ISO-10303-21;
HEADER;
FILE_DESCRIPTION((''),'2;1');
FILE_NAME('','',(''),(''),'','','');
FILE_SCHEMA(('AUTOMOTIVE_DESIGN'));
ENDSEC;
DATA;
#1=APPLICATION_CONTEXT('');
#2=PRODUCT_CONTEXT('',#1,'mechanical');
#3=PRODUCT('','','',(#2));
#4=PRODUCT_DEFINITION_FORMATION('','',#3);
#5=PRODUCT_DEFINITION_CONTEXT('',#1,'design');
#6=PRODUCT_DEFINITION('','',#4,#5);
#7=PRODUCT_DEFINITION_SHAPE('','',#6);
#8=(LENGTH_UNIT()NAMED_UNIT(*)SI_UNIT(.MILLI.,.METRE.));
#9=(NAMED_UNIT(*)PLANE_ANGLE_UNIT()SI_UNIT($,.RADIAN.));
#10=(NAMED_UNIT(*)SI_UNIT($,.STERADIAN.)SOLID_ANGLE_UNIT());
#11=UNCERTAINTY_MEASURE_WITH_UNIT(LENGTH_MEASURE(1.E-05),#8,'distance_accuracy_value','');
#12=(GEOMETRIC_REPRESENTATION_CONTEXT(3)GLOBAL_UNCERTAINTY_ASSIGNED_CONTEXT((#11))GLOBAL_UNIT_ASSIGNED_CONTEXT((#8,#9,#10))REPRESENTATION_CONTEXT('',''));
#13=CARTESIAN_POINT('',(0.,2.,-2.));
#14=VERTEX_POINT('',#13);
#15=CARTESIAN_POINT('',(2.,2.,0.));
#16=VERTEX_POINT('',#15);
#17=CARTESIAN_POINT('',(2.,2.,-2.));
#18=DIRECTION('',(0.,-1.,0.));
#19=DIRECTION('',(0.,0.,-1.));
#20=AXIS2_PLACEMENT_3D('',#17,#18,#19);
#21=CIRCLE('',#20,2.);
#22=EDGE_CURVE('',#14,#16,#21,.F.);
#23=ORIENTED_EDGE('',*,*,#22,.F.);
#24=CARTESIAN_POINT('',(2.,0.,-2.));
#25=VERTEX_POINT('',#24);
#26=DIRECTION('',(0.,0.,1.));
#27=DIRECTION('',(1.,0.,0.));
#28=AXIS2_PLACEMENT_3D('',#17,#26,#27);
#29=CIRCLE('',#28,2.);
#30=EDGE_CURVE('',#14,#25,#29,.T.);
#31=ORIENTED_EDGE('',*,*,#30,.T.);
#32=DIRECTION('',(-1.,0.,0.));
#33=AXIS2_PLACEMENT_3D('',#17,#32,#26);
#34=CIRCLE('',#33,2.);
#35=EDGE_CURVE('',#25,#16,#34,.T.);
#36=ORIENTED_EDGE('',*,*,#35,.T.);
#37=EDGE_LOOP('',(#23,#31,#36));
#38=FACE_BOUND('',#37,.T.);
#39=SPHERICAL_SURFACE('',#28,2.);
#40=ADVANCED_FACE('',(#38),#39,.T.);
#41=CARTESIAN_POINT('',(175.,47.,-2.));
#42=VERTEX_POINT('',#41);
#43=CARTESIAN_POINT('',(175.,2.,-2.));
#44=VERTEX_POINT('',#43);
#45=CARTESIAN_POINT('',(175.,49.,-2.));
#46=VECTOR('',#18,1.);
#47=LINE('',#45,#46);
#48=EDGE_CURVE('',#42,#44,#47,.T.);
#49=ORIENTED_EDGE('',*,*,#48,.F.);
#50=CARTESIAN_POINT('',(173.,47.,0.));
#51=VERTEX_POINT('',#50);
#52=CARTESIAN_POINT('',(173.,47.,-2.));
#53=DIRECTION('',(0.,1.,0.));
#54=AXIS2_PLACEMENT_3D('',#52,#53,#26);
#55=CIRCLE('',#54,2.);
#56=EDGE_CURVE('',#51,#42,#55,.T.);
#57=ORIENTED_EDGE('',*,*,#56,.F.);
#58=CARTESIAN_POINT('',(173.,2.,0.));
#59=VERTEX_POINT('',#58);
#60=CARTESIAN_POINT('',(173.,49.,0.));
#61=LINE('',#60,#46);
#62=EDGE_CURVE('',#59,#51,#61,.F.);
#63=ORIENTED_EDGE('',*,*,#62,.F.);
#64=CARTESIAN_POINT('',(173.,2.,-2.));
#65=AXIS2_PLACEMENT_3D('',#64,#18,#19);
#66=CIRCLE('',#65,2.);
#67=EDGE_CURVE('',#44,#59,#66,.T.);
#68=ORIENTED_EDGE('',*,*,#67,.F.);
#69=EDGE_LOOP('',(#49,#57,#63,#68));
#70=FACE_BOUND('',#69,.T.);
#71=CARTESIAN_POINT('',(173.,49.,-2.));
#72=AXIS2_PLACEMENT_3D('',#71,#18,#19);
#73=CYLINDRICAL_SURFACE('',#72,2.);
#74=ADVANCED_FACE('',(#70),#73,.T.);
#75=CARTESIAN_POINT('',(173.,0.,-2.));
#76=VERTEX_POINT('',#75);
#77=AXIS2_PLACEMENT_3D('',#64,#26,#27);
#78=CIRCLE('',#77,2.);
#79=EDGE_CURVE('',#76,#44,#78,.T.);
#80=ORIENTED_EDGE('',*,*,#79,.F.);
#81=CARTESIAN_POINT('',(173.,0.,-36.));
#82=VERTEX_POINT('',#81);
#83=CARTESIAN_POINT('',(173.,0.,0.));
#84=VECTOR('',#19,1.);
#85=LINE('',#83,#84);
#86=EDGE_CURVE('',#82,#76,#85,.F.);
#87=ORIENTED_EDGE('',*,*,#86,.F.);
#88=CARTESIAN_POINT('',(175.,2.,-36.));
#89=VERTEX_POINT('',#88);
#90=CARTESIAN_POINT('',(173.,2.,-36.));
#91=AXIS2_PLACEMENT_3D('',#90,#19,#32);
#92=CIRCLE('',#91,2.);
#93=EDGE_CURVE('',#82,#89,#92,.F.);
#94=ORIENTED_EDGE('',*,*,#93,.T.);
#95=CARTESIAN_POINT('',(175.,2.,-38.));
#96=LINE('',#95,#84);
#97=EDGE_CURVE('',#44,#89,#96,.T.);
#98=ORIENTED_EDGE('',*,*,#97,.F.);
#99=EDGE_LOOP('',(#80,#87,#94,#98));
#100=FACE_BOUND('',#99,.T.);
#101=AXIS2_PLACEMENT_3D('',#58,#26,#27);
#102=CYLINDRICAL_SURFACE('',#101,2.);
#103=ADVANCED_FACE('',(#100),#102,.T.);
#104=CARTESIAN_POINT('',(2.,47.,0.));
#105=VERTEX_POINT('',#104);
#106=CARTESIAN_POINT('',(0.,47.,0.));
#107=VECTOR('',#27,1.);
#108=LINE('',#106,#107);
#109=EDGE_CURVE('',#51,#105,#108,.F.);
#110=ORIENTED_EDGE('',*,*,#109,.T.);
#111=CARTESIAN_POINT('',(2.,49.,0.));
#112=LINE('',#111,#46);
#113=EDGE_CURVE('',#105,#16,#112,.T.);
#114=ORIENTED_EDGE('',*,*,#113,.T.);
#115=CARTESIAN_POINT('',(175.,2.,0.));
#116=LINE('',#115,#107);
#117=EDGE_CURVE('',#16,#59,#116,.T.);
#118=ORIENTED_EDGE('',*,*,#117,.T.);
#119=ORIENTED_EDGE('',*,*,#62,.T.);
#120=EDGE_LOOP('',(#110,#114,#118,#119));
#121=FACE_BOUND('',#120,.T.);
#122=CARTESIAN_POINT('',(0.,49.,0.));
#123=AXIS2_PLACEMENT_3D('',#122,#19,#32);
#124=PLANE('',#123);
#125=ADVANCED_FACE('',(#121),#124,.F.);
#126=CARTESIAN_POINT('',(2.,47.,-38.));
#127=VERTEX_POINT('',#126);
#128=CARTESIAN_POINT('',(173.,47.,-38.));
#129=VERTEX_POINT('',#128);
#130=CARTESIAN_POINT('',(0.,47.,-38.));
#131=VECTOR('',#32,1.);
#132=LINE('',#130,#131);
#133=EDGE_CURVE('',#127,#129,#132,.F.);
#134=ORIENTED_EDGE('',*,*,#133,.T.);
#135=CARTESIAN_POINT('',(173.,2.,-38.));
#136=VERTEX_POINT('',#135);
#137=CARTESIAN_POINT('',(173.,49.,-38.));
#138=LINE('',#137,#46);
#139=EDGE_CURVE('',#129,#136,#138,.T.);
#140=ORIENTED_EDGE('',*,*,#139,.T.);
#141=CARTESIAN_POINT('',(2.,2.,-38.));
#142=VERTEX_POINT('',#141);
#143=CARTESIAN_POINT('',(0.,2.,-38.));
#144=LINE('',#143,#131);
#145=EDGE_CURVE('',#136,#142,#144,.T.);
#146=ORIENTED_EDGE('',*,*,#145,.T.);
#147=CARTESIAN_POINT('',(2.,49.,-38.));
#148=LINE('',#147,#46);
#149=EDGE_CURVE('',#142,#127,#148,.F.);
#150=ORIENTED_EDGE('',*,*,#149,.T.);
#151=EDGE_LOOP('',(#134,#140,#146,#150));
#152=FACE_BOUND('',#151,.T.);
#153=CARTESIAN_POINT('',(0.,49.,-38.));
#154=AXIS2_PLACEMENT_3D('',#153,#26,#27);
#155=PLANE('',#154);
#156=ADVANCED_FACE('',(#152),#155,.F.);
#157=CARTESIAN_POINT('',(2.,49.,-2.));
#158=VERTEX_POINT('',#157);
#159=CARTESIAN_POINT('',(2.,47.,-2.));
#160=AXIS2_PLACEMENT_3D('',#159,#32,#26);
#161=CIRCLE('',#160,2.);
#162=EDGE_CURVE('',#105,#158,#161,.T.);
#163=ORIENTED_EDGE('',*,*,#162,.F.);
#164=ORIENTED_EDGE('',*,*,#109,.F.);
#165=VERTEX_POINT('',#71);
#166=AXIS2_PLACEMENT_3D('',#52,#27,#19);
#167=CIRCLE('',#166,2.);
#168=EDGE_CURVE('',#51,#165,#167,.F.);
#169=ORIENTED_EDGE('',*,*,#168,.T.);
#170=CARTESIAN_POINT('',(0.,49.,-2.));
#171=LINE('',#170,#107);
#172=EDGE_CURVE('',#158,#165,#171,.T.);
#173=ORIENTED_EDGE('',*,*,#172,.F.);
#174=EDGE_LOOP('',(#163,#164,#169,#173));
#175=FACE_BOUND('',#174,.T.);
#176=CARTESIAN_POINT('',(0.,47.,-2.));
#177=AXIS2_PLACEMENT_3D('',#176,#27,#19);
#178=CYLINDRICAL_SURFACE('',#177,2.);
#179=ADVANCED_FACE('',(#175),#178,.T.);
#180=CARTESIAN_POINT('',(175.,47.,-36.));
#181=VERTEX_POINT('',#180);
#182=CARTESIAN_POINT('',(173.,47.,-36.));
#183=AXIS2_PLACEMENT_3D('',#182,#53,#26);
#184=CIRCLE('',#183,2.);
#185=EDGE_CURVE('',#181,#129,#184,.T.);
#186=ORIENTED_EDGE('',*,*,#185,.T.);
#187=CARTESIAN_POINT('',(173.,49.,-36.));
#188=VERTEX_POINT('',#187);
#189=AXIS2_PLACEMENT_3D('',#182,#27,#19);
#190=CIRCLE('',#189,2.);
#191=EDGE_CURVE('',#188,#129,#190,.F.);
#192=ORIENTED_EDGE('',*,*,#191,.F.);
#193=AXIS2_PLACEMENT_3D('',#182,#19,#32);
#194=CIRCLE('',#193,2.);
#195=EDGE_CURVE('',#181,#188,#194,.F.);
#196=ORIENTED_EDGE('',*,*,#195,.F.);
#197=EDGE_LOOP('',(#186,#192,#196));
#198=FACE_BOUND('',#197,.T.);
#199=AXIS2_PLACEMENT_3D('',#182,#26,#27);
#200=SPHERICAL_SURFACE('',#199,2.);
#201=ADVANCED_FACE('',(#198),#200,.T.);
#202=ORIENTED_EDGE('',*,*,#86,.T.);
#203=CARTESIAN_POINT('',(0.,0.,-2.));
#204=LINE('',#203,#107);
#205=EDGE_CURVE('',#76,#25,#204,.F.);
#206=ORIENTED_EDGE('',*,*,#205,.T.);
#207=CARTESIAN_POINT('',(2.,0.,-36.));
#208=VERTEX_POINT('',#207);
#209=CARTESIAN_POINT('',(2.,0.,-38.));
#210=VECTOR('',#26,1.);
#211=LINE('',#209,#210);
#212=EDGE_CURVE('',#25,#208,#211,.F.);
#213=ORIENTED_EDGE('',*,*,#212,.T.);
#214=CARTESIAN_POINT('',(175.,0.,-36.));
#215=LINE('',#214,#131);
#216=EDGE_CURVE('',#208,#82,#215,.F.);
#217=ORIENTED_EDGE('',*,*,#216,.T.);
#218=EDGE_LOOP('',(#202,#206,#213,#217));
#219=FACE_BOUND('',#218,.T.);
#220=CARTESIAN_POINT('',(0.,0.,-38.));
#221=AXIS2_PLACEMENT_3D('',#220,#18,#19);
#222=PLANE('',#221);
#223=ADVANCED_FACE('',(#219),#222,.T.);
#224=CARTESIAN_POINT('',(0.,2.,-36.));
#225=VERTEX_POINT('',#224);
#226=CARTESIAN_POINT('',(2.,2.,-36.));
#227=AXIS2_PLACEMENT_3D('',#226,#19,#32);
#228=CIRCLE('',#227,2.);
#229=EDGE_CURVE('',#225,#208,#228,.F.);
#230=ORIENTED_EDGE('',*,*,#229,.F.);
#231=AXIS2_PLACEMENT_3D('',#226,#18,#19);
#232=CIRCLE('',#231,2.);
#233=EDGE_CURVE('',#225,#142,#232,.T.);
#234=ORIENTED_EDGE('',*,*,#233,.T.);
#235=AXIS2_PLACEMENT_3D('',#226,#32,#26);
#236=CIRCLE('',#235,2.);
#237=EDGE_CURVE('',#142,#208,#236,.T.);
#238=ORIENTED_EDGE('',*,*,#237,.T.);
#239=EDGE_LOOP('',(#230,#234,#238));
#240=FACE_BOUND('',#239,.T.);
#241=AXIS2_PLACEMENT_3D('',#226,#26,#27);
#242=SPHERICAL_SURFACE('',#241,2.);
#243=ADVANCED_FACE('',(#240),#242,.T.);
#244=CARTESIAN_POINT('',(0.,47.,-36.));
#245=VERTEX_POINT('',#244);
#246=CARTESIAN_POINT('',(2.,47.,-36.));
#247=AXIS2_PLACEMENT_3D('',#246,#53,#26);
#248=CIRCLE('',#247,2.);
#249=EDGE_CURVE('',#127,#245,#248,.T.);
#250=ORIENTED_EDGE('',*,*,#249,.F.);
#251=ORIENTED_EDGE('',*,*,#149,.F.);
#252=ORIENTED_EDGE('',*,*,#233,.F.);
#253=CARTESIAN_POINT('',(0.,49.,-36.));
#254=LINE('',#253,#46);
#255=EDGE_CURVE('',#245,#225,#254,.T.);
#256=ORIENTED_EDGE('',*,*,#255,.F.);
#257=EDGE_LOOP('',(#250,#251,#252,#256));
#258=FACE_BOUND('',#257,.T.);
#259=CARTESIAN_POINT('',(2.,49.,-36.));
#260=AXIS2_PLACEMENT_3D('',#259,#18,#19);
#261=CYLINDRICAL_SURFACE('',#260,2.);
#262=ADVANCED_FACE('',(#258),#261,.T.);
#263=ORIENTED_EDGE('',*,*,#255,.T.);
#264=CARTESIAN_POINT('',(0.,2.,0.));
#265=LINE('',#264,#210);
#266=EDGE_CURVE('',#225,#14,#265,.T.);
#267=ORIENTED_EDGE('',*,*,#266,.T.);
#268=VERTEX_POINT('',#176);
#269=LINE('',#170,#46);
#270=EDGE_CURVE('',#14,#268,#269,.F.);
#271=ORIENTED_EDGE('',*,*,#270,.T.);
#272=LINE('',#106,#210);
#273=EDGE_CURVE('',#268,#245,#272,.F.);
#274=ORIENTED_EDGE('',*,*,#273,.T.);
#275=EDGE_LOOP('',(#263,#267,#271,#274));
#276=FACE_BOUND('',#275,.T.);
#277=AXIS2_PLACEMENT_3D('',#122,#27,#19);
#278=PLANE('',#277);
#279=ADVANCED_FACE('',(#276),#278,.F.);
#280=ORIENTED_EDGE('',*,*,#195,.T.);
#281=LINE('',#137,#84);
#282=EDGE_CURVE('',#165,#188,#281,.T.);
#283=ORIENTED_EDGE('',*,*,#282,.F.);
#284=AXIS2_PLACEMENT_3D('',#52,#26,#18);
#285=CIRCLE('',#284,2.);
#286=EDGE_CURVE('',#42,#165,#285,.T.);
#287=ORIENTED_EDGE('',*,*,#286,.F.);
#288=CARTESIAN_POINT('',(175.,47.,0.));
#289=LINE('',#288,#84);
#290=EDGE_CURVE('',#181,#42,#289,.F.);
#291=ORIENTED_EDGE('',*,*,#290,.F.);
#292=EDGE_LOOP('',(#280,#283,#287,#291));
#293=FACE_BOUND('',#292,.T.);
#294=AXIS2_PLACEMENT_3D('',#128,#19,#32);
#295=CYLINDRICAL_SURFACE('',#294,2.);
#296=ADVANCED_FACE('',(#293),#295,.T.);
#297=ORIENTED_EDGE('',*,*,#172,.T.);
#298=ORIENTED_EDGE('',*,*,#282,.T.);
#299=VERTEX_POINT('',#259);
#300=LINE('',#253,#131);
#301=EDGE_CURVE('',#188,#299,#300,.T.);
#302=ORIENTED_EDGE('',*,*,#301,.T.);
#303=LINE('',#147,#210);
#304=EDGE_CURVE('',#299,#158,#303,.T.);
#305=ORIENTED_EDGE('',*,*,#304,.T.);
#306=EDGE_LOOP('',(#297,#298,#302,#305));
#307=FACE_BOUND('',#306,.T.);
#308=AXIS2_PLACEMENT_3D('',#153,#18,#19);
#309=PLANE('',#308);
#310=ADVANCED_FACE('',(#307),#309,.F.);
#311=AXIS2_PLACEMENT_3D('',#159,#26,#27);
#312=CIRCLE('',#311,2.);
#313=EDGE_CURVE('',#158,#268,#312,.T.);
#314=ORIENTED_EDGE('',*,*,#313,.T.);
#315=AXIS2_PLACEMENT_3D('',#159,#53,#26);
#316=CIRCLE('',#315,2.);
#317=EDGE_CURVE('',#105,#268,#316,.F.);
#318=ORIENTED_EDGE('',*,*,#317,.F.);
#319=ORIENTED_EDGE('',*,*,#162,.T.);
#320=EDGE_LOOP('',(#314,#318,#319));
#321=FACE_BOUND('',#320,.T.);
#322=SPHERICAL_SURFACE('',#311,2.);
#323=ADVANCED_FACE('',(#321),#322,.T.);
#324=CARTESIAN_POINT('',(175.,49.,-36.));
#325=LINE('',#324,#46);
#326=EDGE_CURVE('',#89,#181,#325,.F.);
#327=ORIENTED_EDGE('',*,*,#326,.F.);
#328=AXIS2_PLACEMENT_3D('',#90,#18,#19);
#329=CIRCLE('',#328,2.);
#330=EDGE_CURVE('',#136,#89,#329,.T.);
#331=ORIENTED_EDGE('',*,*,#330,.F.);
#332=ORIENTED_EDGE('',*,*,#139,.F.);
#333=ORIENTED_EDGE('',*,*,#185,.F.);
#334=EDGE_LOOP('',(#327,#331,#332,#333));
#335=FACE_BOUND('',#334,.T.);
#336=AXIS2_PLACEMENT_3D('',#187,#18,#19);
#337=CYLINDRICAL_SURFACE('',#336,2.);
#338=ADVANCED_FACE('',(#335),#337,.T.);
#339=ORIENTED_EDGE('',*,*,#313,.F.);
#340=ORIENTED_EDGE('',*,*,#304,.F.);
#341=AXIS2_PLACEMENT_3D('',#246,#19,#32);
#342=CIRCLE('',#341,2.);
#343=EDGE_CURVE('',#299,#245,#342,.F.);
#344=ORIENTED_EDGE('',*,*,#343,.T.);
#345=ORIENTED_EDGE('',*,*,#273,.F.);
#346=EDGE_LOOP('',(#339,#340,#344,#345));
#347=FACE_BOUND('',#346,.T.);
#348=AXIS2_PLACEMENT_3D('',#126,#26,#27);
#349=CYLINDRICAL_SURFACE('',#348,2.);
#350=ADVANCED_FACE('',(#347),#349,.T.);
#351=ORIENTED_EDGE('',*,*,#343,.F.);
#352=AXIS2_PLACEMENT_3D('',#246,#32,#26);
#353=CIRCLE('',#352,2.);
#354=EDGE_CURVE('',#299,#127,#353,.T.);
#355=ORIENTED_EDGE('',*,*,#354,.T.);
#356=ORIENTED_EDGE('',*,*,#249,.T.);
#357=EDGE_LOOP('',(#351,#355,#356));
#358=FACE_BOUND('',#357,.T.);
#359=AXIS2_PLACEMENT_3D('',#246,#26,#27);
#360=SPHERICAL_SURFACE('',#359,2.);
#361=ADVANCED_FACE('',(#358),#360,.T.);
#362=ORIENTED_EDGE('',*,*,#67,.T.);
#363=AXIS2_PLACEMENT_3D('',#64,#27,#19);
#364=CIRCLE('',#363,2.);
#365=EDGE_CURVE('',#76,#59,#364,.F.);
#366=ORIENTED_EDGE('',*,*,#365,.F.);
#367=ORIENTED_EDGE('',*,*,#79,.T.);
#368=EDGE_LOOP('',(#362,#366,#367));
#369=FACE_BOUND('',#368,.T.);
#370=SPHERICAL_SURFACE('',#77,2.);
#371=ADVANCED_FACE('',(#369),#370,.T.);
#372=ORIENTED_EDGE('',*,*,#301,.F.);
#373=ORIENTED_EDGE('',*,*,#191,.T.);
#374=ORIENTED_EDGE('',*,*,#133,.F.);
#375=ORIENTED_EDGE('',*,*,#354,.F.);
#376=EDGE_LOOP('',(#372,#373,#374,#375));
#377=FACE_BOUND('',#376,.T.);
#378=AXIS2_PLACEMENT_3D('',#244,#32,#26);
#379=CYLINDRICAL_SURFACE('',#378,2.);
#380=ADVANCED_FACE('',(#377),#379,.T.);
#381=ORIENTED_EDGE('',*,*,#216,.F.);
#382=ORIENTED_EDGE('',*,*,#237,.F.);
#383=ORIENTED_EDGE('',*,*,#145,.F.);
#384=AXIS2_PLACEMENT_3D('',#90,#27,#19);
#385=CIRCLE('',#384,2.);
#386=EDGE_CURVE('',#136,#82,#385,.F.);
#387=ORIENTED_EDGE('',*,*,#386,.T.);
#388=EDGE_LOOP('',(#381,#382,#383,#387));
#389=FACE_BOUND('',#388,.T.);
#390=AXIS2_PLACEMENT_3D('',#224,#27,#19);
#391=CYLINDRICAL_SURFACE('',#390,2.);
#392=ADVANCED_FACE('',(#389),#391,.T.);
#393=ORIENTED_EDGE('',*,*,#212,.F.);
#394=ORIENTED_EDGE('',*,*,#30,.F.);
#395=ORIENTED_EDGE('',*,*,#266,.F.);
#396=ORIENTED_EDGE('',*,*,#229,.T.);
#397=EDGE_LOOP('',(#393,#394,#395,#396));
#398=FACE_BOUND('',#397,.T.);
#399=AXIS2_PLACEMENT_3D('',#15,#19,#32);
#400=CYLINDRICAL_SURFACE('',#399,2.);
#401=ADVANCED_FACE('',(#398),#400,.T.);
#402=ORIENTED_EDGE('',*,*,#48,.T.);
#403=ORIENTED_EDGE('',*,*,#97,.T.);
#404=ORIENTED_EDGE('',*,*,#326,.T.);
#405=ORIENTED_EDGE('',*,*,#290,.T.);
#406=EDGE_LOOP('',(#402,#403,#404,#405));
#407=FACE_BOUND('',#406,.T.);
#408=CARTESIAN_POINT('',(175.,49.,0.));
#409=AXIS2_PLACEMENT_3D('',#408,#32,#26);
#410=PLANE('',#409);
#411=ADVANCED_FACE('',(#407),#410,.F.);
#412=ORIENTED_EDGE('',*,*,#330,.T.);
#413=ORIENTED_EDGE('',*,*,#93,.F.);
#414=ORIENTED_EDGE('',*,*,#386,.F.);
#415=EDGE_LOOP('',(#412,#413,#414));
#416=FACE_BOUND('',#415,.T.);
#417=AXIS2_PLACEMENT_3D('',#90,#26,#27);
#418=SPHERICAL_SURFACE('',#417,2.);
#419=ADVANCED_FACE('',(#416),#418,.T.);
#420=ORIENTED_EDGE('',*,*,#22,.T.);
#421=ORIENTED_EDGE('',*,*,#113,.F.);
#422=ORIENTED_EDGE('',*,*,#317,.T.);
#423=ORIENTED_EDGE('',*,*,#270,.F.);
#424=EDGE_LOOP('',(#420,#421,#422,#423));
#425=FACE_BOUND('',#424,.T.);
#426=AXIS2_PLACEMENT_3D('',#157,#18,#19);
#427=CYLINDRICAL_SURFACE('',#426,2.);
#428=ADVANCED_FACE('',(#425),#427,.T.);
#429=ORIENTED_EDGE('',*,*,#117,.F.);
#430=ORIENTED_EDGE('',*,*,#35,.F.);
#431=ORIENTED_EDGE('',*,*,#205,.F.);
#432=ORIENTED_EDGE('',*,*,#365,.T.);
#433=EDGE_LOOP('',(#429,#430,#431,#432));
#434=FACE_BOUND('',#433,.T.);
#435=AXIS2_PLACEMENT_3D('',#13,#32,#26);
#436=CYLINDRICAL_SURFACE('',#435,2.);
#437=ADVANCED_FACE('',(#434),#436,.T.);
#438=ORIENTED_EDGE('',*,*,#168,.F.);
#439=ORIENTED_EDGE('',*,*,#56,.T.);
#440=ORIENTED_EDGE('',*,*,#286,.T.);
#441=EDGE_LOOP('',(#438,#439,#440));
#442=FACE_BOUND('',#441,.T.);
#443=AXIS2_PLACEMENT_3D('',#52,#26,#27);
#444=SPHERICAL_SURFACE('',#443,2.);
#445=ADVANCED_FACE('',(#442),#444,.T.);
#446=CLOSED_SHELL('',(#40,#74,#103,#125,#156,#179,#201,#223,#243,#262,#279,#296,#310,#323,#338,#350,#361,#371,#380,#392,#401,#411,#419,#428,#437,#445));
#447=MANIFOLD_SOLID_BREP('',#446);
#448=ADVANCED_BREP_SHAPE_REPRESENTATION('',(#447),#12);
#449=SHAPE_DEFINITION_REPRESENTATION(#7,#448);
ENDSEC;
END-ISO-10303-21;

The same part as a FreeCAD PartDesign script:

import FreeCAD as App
import Part
import Sketcher

doc = App.newDocument("Part")
body = doc.addObject("PartDesign::Body", "Body")

sketch1 = body.newObject("Sketcher::SketchObject", "Sketch")
sketch1.AttachmentSupport = (doc.getObject("XZ_Plane"), [""])
sketch1.MapMode = "FlatFace"
sketch1.addGeometry(Part.LineSegment(App.Vector(0, -38, 0), App.Vector(0, 0, 0)), False)
sketch1.addGeometry(Part.LineSegment(App.Vector(0, 0, 0), App.Vector(175, 0, 0)), False)
sketch1.addGeometry(Part.LineSegment(App.Vector(175, 0, 0), App.Vector(175, -38, 0)), False)
sketch1.addGeometry(Part.LineSegment(App.Vector(175, -38, 0), App.Vector(0, -38, 0)), False)
sketch1.addConstraint(Sketcher.Constraint("Coincident", 0, 2, 1, 1))
sketch1.addConstraint(Sketcher.Constraint("Coincident", 1, 2, 2, 1))
sketch1.addConstraint(Sketcher.Constraint("Coincident", 2, 2, 3, 1))
sketch1.addConstraint(Sketcher.Constraint("Coincident", 3, 2, 0, 1))
sketch1.addConstraint(Sketcher.Constraint("Vertical", 0))
sketch1.addConstraint(Sketcher.Constraint("Horizontal", 1))
sketch1.addConstraint(Sketcher.Constraint("Vertical", 2))
sketch1.addConstraint(Sketcher.Constraint("Horizontal", 3))
sketch1.addConstraint(Sketcher.Constraint("Coincident", 0, 2, -1, 1))
sketch1.addConstraint(Sketcher.Constraint("DistanceX", 1, 1, 1, 2, 175.0))
sketch1.addConstraint(Sketcher.Constraint("DistanceY", 0, 1, 0, 2, 38.0))
pad1 = body.newObject("PartDesign::Pad", "Pad")
pad1.Profile = sketch1
pad1.Length = 49
pad1.Reversed = True
doc.recompute()

fillet = body.newObject("PartDesign::Fillet", "Fillet")
fillet.Base = (pad1, ["Edge1"])
fillet.UseAllEdges = True
fillet.Radius = 2

doc.recompute()
